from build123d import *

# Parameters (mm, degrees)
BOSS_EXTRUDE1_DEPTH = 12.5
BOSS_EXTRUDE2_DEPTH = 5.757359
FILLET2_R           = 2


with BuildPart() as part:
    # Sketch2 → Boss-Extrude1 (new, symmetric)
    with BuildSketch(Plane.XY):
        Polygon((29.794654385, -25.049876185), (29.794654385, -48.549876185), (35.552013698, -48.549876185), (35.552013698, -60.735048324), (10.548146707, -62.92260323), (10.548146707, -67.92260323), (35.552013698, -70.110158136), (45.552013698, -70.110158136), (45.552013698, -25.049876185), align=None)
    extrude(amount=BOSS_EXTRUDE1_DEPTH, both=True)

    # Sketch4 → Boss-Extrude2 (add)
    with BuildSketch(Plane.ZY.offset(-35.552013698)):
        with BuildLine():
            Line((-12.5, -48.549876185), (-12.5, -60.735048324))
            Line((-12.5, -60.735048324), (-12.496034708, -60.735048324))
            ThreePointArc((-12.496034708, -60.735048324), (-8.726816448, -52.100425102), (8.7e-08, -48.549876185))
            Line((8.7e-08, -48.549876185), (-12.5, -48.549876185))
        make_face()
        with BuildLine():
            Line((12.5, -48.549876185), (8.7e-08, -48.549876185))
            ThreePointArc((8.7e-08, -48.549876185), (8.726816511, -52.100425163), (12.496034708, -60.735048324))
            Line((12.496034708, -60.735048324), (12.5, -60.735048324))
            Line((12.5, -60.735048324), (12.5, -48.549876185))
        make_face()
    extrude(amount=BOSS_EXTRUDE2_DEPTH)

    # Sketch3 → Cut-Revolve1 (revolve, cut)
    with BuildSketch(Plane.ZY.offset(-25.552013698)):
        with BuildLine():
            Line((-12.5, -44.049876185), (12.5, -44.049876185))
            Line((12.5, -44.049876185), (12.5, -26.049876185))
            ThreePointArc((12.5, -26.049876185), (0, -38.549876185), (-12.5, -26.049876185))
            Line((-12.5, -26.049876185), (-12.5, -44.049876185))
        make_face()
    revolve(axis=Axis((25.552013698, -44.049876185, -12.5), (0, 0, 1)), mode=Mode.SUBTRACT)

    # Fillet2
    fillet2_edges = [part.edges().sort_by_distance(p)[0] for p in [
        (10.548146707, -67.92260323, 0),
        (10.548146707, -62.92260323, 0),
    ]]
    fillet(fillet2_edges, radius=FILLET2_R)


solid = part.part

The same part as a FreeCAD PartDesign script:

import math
import FreeCAD as App
import Part
import Sketcher

V = App.Vector
Q = App.Units.Quantity


def edges_at(feature, points):
    """Names of the edges that pass closest to the given points."""
    edges = feature.Shape.Edges
    near = lambda p: min(range(len(edges)), key=lambda i: edges[i].distToShape(Part.Vertex(*p))[0])
    return sorted({f"Edge{near(p) + 1}" for p in points})


def add_polygon(sketch, points):
    """Adds a closed chain of lines whose ends are joined by coincident constraints."""
    first, n = sketch.GeometryCount, len(points)
    for a, b in zip(points, points[1:] + points[:1]):
        sketch.addGeometry(Part.LineSegment(App.Vector(*a, 0), App.Vector(*b, 0)), False)
    for i in range(n):
        sketch.addConstraint(Sketcher.Constraint("Coincident", first + i, 2, first + (i + 1) % n, 1))

doc = App.newDocument("Part")
body = doc.addObject("PartDesign::Body", "Body")

sketch1 = doc.addObject("Sketcher::SketchObject", "Sketch")
body.addObject(sketch1)
sketch1.AttachmentSupport = (doc.XY_Plane, [""])
sketch1.MapMode = "FlatFace"
add_polygon(sketch1, [(29.794654, -25.049876), (29.794654, -48.549876), (35.552014, -48.549876), (35.552014, -60.735048), (10.548147, -62.922603), (10.548147, -67.922603), (35.552014, -70.110158), (45.552014, -70.110158), (45.552014, -25.049876)])
sketch1.addConstraint(Sketcher.Constraint("Vertical", 0))
sketch1.addConstraint(Sketcher.Constraint("Horizontal", 1))
sketch1.addConstraint(Sketcher.Constraint("Vertical", 2))
sketch1.addConstraint(Sketcher.Constraint("Vertical", 4))
sketch1.addConstraint(Sketcher.Constraint("Horizontal", 6))
sketch1.addConstraint(Sketcher.Constraint("Vertical", 7))
sketch1.addConstraint(Sketcher.Constraint("Horizontal", 8))
sketch1.addConstraint(Sketcher.Constraint("Vertical", 2, 2, 5, 2))
sketch1.addConstraint(Sketcher.Constraint("Equal", 3, 5))
sketch1.addConstraint(Sketcher.Constraint("DistanceX", 6, 1, 6, 2, 10.0))
sketch1.addConstraint(Sketcher.Constraint("DistanceY", 4, 2, 4, 1, 5.0))
sketch1.addConstraint(Sketcher.Constraint("Angle", 3, Q("-175 deg")))
sketch1.addConstraint(Sketcher.Constraint("DistanceY", 0, 2, 0, 1, 23.5))
sketch1.addConstraint(Sketcher.Constraint("DistanceX", 1, 1, 1, 2, 5.757359))
sketch1.addConstraint(Sketcher.Constraint("DistanceY", 7, 1, 7, 2, 45.060282))
sketch1.addConstraint(Sketcher.Constraint("DistanceY", 2, 2, 2, 1, 12.185172))
sketch1.addConstraint(Sketcher.Constraint("DistanceY", 2, 2, -1, 1, 60.735048))
sketch1.addConstraint(Sketcher.Constraint("DistanceX", -1, 1, 0, 2, 29.794654))
pad1 = doc.addObject("PartDesign::Pad", "Pad")
body.addObject(pad1)
pad1.Profile = sketch1
pad1.Length = 25
pad1.Midplane = True

sketch2 = doc.addObject("Sketcher::SketchObject", "Sketch001")
body.addObject(sketch2)
sketch2.AttachmentSupport = (doc.YZ_Plane, [""])
sketch2.MapMode = "FlatFace"
sketch2.AttachmentOffset = App.Placement(V(0, 0, 35.552014), App.Rotation())
sketch2.addGeometry(Part.LineSegment(V(-48.549876, -12.5, 0), V(-60.735048, -12.5, 0)), False)
sketch2.addGeometry(Part.LineSegment(V(-60.735048, -12.5, 0), V(-60.735048, -12.496035, 0)), False)
sketch2.addGeometry(Part.ArcOfCircle(Part.Circle(V(-61.049876, 0, 0), V(0, 0, 1), 12.5), math.radians(-88.556783), math.radians(0)), False)
sketch2.addGeometry(Part.LineSegment(V(-48.549876, 0, 0), V(-48.549876, -12.5, 0)), False)
sketch2.addGeometry(Part.LineSegment(V(-48.549876, 12.5, 0), V(-48.549876, 0, 0)), False)
sketch2.addGeometry(Part.ArcOfCircle(Part.Circle(V(-61.049876, 0, 0), V(0, 0, 1), 12.5), math.radians(0), math.radians(88.556783)), False)
sketch2.addGeometry(Part.LineSegment(V(-60.735048, 12.496035, 0), V(-60.735048, 12.5, 0)), False)
sketch2.addGeometry(Part.LineSegment(V(-60.735048, 12.5, 0), V(-48.549876, 12.5, 0)), False)
sketch2.addConstraint(Sketcher.Constraint("Coincident", 0, 2, 1, 1))
sketch2.addConstraint(Sketcher.Constraint("Coincident", 1, 2, 2, 1))
sketch2.addConstraint(Sketcher.Constraint("Tangent", 2, 2, 3, 1))
sketch2.addConstraint(Sketcher.Constraint("Coincident", 3, 2, 0, 1))
sketch2.addConstraint(Sketcher.Constraint("Tangent", 4, 2, 5, 1))
sketch2.addConstraint(Sketcher.Constraint("Coincident", 5, 2, 6, 1))
sketch2.addConstraint(Sketcher.Constraint("Coincident", 6, 2, 7, 1))
sketch2.addConstraint(Sketcher.Constraint("Coincident", 7, 2, 4, 1))
sketch2.addConstraint(Sketcher.Constraint("Horizontal", 0))
sketch2.addConstraint(Sketcher.Constraint("Vertical", 1))
sketch2.addConstraint(Sketcher.Constraint("Vertical", 3))
sketch2.addConstraint(Sketcher.Constraint("Vertical", 4))
sketch2.addConstraint(Sketcher.Constraint("Vertical", 6))
sketch2.addConstraint(Sketcher.Constraint("Horizontal", 7))
sketch2.addConstraint(Sketcher.Constraint("Coincident", 5, 3, 2, 3))
sketch2.addConstraint(Sketcher.Constraint("Equal", 2, 5))
sketch2.addConstraint(Sketcher.Constraint("Symmetric", 1, 2, 5, 2, -1))
sketch2.addConstraint(Sketcher.Constraint("Equal", 3, 4))
sketch2.addConstraint(Sketcher.Constraint("Radius", 2, 12.5))
sketch2.addConstraint(Sketcher.Constraint("DistanceY", 3, 2, 3, 1, 12.5))
sketch2.addConstraint(Sketcher.Constraint("DistanceX", 0, 2, 0, 1, 12.185172))
sketch2.addConstraint(Sketcher.Constraint("DistanceX", 0, 2, -1, 1, 60.735048))
pad2 = doc.addObject("PartDesign::Pad", "Pad001")
body.addObject(pad2)
pad2.Profile = sketch2
pad2.Length = 5.757359
pad2.Reversed = True

sketch3 = doc.addObject("Sketcher::SketchObject", "Sketch002")
body.addObject(sketch3)
sketch3.AttachmentSupport = (doc.YZ_Plane, [""])
sketch3.MapMode = "FlatFace"
sketch3.AttachmentOffset = App.Placement(V(0, 0, 25.552014), App.Rotation())
sketch3.addGeometry(Part.LineSegment(V(-44.049876, -12.5, 0), V(-44.049876, 12.5, 0)), False)
sketch3.addGeometry(Part.LineSegment(V(-44.049876, 12.5, 0), V(-26.049876, 12.5, 0)), False)
sketch3.addGeometry(Part.ArcOfCircle(Part.Circle(V(-26.049876, 0, 0), V(0, 0, 1), 12.5), math.radians(90), math.radians(270)), False)
sketch3.addGeometry(Part.LineSegment(V(-26.049876, -12.5, 0), V(-44.049876, -12.5, 0)), False)
sketch3.addGeometry(Part.LineSegment(V(-44.049876, -12.5, 0), V(-44.049876, 12.5, 0)), True)
sketch3.addConstraint(Sketcher.Constraint("Coincident", 0, 2, 1, 1))
sketch3.addConstraint(Sketcher.Constraint("Tangent", 1, 2, 2, 1))
sketch3.addConstraint(Sketcher.Constraint("Tangent", 2, 2, 3, 1))
sketch3.addConstraint(Sketcher.Constraint("Coincident", 3, 2, 0, 1))
sketch3.addConstraint(Sketcher.Constraint("Vertical", 0))
sketch3.addConstraint(Sketcher.Constraint("Horizontal", 1))
sketch3.addConstraint(Sketcher.Constraint("Horizontal", 3))
sketch3.addConstraint(Sketcher.Constraint("Vertical", 4))
sketch3.addConstraint(Sketcher.Constraint("Coincident", 4, 1, 3, 2))
sketch3.addConstraint(Sketcher.Constraint("PointOnObject", 2, 3, -1))
sketch3.addConstraint(Sketcher.Constraint("Horizontal", 1, 2, 4, 2))
sketch3.addConstraint(Sketcher.Constraint("Radius", 2, 12.5))
sketch3.addConstraint(Sketcher.Constraint("DistanceX", 1, 1, 1, 2, 18.0))
sketch3.addConstraint(Sketcher.Constraint("DistanceX", 2, 3, -1, 1, 26.049876))
groove = doc.addObject("PartDesign::Groove", "Groove")
body.addObject(groove)
groove.Profile = sketch3
groove.ReferenceAxis = (sketch3, ["Axis0"])
groove.Angle = 360
doc.recompute()

fillet = doc.addObject("PartDesign::Fillet", "Fillet")
body.addObject(fillet)
fillet.Base = (groove, edges_at(groove, [(10.548, -67.923, 0), (10.548, -62.923, 0)]))
fillet.Radius = 2

doc.recompute()
